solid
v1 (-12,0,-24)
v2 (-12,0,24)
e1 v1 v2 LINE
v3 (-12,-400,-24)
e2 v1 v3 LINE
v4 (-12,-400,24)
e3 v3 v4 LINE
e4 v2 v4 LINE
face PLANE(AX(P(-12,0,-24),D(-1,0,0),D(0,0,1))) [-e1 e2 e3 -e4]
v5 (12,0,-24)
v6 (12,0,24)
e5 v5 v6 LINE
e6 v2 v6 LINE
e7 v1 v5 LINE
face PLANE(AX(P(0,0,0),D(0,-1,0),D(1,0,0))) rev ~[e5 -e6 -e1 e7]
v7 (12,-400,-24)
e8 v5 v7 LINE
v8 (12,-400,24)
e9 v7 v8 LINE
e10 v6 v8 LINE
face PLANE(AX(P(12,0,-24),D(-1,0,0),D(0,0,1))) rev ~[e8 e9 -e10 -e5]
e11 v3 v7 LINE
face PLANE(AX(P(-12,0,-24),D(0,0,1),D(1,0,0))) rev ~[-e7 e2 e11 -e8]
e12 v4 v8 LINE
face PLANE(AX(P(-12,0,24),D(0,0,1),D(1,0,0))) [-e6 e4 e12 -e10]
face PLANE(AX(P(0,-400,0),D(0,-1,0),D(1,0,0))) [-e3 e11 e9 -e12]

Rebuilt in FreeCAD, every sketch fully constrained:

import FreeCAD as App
import Part
import Sketcher

doc = App.newDocument("Part")
body = doc.addObject("PartDesign::Body", "Body")

sketch1 = body.newObject("Sketcher::SketchObject", "Sketch")
sketch1.AttachmentSupport = (doc.getObject("XZ_Plane"), [""])
sketch1.MapMode = "FlatFace"
sketch1.addGeometry([
    Part.LineSegment(App.Vector(-12, 24, 0), App.Vector(-12, -24, 0)),
    Part.LineSegment(App.Vector(-12, -24, 0), App.Vector(12, -24, 0)),
    Part.LineSegment(App.Vector(12, -24, 0), App.Vector(12, 24, 0)),
    Part.LineSegment(App.Vector(12, 24, 0), App.Vector(-12, 24, 0)),
], False)
sketch1.addConstraint([
    Sketcher.Constraint("Coincident", 0, 2, 1, 1),
    Sketcher.Constraint("Coincident", 1, 2, 2, 1),
    Sketcher.Constraint("Coincident", 2, 2, 3, 1),
    Sketcher.Constraint("Coincident", 3, 2, 0, 1),
    Sketcher.Constraint("Vertical", 0),
    Sketcher.Constraint("Horizontal", 1),
    Sketcher.Constraint("Vertical", 2),
    Sketcher.Constraint("Horizontal", 3),
    Sketcher.Constraint("Symmetric", 0, 2, 2, 2, -1, 1),
    Sketcher.Constraint("DistanceX", 1, 1, 1, 2, 24.0),
    Sketcher.Constraint("DistanceY", 0, 2, 0, 1, 48.0),
])
pad1 = body.newObject("PartDesign::Pad", "Pad")
pad1.Profile = sketch1
pad1.Length = 400

doc.recompute()
